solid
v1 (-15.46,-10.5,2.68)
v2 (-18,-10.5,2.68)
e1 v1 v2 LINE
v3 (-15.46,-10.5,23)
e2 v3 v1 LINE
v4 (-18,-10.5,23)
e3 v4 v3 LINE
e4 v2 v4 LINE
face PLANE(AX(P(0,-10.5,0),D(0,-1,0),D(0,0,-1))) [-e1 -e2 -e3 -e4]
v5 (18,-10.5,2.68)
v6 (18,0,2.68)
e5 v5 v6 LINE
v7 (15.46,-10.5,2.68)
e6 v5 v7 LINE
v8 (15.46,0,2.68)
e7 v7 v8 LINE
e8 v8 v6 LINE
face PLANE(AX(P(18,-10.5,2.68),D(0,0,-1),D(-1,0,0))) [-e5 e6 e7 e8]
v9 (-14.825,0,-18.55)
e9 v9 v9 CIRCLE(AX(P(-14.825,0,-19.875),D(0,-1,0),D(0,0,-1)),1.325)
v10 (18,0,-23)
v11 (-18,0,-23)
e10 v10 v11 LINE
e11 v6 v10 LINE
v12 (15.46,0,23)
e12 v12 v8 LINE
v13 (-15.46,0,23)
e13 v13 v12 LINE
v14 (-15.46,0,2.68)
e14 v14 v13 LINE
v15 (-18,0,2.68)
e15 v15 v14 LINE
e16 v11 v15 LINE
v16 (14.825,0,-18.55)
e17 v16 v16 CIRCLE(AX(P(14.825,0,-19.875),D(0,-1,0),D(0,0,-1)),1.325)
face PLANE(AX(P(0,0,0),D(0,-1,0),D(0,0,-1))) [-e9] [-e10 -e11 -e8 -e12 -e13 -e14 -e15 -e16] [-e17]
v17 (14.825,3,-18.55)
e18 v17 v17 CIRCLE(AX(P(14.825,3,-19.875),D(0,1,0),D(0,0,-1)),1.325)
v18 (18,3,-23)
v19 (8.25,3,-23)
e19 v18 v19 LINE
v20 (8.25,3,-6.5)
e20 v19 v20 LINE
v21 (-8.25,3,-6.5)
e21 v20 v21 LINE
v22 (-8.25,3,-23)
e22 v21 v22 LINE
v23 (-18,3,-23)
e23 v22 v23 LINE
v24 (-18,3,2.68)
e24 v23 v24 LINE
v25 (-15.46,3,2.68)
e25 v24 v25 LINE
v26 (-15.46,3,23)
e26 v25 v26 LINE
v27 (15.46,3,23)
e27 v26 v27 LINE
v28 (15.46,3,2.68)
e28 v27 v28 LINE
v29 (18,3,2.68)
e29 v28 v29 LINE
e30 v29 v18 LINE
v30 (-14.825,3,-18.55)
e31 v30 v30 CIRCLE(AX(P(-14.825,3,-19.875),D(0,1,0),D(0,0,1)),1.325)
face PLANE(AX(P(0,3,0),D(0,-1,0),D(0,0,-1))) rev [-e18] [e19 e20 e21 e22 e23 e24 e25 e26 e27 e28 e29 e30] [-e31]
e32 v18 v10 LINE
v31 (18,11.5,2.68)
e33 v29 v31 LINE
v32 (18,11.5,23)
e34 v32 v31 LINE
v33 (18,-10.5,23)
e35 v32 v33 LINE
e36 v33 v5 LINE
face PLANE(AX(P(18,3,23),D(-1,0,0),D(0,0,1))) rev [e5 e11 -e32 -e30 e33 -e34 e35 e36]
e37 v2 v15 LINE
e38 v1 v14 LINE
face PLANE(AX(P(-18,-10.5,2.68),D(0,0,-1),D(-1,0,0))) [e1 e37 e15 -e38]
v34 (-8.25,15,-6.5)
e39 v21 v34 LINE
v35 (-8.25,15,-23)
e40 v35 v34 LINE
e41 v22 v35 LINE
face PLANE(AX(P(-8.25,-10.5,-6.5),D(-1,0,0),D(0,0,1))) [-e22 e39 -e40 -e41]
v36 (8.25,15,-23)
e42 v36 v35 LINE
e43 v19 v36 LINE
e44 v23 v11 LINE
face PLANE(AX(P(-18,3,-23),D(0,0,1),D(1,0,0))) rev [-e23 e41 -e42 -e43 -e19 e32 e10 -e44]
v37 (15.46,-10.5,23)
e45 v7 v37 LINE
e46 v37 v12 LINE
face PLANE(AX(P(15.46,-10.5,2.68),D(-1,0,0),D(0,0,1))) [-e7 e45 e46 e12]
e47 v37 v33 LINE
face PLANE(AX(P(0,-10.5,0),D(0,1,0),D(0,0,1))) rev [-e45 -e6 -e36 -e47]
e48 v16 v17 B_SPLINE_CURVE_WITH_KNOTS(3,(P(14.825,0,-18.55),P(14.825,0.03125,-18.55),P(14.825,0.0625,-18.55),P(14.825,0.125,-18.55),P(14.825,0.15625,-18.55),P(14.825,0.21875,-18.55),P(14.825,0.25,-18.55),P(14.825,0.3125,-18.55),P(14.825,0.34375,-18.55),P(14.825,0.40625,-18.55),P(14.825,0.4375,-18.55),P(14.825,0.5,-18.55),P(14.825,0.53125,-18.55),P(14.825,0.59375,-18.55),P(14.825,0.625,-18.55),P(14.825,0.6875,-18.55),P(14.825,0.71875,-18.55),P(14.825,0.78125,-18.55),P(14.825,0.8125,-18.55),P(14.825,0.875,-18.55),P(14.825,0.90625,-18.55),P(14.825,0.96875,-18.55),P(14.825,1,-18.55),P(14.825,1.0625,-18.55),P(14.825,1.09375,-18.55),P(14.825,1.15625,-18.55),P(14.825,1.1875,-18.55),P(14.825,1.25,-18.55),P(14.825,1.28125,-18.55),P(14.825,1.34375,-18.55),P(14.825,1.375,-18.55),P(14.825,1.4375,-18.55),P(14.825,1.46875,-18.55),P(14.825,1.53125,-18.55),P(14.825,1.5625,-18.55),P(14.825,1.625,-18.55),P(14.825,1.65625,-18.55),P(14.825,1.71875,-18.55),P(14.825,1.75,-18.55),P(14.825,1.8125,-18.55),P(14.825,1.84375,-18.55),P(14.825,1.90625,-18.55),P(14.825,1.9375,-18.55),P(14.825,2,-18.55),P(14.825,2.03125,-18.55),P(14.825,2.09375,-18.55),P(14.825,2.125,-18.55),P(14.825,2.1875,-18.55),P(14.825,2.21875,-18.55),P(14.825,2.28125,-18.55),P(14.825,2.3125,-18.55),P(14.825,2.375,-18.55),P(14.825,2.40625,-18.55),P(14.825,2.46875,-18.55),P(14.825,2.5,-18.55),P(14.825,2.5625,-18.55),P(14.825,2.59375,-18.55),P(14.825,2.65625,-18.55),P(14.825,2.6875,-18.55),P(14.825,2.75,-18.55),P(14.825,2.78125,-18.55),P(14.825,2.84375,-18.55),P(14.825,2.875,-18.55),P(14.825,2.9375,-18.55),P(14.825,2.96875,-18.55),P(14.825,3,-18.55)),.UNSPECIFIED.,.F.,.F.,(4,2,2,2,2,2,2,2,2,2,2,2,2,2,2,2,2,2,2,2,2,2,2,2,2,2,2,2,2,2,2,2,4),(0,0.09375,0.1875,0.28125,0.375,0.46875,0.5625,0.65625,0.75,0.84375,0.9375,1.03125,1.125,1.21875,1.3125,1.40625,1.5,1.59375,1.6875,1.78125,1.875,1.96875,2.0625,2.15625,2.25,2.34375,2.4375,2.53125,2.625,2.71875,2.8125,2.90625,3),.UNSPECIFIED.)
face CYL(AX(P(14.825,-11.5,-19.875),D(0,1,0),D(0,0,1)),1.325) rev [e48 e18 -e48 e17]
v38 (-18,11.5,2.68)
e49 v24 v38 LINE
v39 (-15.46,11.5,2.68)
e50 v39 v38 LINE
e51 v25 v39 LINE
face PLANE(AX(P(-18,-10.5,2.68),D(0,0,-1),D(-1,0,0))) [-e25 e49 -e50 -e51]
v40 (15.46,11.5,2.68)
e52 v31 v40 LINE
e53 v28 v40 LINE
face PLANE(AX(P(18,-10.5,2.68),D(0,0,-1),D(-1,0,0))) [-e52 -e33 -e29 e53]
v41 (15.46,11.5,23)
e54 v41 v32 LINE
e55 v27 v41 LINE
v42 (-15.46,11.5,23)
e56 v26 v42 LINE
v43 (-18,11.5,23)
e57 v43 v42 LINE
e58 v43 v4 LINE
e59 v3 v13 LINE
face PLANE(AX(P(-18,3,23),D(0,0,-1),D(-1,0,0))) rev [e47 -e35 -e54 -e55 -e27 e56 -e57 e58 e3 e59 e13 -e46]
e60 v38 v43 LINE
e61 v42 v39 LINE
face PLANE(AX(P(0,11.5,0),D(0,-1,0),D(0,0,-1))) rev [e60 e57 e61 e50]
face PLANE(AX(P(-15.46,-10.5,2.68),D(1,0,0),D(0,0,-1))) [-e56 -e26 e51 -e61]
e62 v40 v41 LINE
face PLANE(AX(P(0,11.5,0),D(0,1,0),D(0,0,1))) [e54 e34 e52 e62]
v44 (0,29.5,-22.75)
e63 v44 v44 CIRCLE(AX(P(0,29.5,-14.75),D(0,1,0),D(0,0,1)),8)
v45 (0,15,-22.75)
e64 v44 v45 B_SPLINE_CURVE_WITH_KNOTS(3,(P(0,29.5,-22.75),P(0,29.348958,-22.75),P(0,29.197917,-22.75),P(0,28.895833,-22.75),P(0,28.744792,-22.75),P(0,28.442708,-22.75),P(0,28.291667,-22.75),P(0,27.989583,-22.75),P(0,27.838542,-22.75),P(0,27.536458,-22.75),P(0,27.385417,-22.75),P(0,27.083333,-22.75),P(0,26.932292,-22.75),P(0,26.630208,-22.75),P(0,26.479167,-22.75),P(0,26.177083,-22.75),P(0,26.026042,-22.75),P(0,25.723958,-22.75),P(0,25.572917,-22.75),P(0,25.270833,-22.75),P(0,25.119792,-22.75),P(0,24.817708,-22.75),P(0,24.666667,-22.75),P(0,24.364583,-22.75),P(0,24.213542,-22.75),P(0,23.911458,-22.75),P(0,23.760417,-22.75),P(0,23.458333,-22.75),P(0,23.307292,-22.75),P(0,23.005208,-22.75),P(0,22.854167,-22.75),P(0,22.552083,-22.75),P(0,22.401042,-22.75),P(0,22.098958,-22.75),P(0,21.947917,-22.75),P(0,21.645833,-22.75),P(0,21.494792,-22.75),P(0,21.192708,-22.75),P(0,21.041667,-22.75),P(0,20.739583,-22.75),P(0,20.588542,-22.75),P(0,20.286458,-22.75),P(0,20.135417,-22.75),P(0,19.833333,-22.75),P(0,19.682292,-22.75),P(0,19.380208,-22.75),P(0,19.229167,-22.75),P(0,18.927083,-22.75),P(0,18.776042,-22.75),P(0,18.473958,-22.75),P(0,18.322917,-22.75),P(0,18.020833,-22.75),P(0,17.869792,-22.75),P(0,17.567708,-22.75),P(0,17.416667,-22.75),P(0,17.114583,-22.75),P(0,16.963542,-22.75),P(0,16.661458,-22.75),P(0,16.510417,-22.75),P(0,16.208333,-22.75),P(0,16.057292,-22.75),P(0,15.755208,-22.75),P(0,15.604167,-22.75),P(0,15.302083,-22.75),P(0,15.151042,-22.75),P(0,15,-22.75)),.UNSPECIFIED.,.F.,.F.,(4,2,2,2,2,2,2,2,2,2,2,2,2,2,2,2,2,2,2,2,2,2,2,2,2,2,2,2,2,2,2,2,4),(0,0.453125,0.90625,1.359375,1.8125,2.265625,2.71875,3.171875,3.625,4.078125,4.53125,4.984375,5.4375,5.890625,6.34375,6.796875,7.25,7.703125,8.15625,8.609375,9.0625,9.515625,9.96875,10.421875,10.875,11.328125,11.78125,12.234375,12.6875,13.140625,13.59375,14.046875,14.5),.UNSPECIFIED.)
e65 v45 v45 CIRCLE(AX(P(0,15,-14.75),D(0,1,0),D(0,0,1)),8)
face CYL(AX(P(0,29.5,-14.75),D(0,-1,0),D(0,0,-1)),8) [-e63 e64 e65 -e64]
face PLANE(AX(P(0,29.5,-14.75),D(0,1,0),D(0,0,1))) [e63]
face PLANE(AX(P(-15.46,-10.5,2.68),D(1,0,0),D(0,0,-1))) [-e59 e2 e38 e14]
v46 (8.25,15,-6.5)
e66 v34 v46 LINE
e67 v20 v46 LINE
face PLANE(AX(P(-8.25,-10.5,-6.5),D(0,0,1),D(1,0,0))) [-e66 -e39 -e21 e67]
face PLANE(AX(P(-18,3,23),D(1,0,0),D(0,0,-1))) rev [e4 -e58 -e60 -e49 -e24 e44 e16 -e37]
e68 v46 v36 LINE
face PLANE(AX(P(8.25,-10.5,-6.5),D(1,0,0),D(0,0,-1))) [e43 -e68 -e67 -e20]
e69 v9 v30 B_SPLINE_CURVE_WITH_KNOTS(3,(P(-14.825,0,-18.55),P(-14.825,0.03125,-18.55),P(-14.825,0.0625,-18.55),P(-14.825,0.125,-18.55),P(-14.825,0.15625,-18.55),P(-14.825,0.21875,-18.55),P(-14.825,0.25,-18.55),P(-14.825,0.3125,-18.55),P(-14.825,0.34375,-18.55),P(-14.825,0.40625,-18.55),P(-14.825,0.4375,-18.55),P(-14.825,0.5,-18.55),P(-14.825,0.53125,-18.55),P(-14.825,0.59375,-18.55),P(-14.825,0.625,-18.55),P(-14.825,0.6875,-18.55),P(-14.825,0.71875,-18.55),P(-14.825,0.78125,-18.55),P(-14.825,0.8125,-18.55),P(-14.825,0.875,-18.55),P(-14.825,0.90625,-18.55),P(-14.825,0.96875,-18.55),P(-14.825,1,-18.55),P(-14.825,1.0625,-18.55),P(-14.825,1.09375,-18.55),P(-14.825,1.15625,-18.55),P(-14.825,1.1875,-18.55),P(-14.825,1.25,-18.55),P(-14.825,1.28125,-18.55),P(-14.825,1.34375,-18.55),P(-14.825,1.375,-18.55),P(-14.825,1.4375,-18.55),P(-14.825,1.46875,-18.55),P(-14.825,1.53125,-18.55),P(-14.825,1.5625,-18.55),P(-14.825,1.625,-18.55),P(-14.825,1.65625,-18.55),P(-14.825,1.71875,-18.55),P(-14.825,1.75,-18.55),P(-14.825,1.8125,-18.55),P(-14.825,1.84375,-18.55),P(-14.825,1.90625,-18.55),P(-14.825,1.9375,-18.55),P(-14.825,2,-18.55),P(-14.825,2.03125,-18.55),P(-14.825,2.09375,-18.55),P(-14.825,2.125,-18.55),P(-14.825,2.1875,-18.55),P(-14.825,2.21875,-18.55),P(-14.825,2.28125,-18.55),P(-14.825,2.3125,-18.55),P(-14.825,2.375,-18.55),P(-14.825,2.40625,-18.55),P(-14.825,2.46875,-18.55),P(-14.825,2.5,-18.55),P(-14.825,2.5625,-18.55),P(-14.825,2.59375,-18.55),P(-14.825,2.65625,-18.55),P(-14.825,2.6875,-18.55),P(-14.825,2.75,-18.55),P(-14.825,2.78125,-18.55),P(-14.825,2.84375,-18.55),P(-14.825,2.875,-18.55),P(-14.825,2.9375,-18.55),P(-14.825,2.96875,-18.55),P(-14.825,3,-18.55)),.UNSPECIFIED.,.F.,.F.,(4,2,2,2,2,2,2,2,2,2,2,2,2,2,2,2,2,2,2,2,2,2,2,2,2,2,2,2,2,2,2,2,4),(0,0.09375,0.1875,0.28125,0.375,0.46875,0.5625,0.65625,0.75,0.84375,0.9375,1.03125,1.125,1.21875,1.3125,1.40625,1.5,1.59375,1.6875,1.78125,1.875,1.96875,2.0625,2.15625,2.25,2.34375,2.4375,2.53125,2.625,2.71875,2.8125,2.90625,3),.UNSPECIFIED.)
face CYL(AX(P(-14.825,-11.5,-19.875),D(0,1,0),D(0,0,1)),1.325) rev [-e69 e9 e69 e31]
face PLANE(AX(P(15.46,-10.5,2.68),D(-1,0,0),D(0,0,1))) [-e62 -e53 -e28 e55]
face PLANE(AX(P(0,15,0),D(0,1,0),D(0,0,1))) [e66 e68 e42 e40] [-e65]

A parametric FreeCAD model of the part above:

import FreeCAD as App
import Part
import Sketcher

V = App.Vector
Q = App.Units.Quantity

doc = App.newDocument("Part")
body = doc.addObject("PartDesign::Body", "Body")

sketch1 = body.newObject("Sketcher::SketchObject", "Sketch")
sketch1.AttachmentSupport = (doc.getObject("XZ_Plane"), [""])
sketch1.MapMode = "FlatFace"
sketch1.addGeometry([
    Part.LineSegment(V(-18, -23, 0), V(-18, 23, 0)),
    Part.LineSegment(V(-18, 23, 0), V(18, 23, 0)),
    Part.LineSegment(V(18, 23, 0), V(18, -23, 0)),
    Part.LineSegment(V(18, -23, 0), V(-18, -23, 0)),
], False)
sketch1.addConstraint([
    Sketcher.Constraint("Coincident", 0, 2, 1, 1),
    Sketcher.Constraint("Coincident", 1, 2, 2, 1),
    Sketcher.Constraint("Coincident", 2, 2, 3, 1),
    Sketcher.Constraint("Coincident", 3, 2, 0, 1),
    Sketcher.Constraint("Vertical", 0),
    Sketcher.Constraint("Horizontal", 1),
    Sketcher.Constraint("Vertical", 2),
    Sketcher.Constraint("Horizontal", 3),
    Sketcher.Constraint("Symmetric", 0, 2, 2, 2, -1, 1),
    Sketcher.Constraint("DistanceX", 1, 1, 1, 2, Q("36 mm")),
    Sketcher.Constraint("DistanceY", 0, 1, 0, 2, Q("46 mm")),
])
pad1 = body.newObject("PartDesign::Pad", "Pad")
pad1.Profile = sketch1
pad1.Length = 3
pad1.Reversed = True

sketch2 = body.newObject("Sketcher::SketchObject", "Sketch001")
sketch2.AttachmentSupport = (doc.getObject("XZ_Plane"), [""])
sketch2.MapMode = "FlatFace"
sketch2.AttachmentOffset = App.Placement(V(0, 0, -3), App.Rotation())
sketch2.addGeometry([
    Part.LineSegment(V(15.5, 2.7, 0), V(15.5, 23, 0)),
    Part.LineSegment(V(15.5, 23, 0), V(18, 23, 0)),
    Part.LineSegment(V(18, 23, 0), V(18, 2.7, 0)),
    Part.LineSegment(V(18, 2.7, 0), V(15.5, 2.7, 0)),
    Part.LineSegment(V(-18, 2.7, 0), V(-18, 23, 0)),
    Part.LineSegment(V(-18, 23, 0), V(-15.5, 23, 0)),
    Part.LineSegment(V(-15.5, 23, 0), V(-15.5, 2.7, 0)),
    Part.LineSegment(V(-15.5, 2.7, 0), V(-18, 2.7, 0)),
    Part.LineSegment(V(-8.2, -23, 0), V(-8.2, -6.5, 0)),
    Part.LineSegment(V(-8.2, -6.5, 0), V(8.2, -6.5, 0)),
    Part.LineSegment(V(8.2, -6.5, 0), V(8.2, -23, 0)),
    Part.LineSegment(V(8.2, -23, 0), V(-8.2, -23, 0)),
], False)
sketch2.addConstraint([
    Sketcher.Constraint("Coincident", 0, 2, 1, 1),
    Sketcher.Constraint("Coincident", 1, 2, 2, 1),
    Sketcher.Constraint("Coincident", 2, 2, 3, 1),
    Sketcher.Constraint("Coincident", 3, 2, 0, 1),
    Sketcher.Constraint("Coincident", 4, 2, 5, 1),
    Sketcher.Constraint("Coincident", 5, 2, 6, 1),
    Sketcher.Constraint("Coincident", 6, 2, 7, 1),
    Sketcher.Constraint("Coincident", 7, 2, 4, 1),
    Sketcher.Constraint("Coincident", 8, 2, 9, 1),
    Sketcher.Constraint("Coincident", 9, 2, 10, 1),
    Sketcher.Constraint("Coincident", 10, 2, 11, 1),
    Sketcher.Constraint("Coincident", 11, 2, 8, 1),
    Sketcher.Constraint("Vertical", 0),
    Sketcher.Constraint("Horizontal", 1),
    Sketcher.Constraint("Vertical", 2),
    Sketcher.Constraint("Horizontal", 3),
    Sketcher.Constraint("Vertical", 4),
    Sketcher.Constraint("Horizontal", 5),
    Sketcher.Constraint("Vertical", 6),
    Sketcher.Constraint("Horizontal", 7),
    Sketcher.Constraint("Vertical", 8),
    Sketcher.Constraint("Horizontal", 9),
    Sketcher.Constraint("Vertical", 10),
    Sketcher.Constraint("Horizontal", 11),
    Sketcher.Constraint("Symmetric", 1, 2, 4, 2, -2),
    Sketcher.Constraint("Symmetric", 3, 2, 6, 2, -2),
    Sketcher.Constraint("Equal", 11, 8),
    Sketcher.Constraint("DistanceX", 9, 1, 9, 2, Q("16.5 mm")),
    Sketcher.Constraint("DistanceY", -1, 1, 0, 2, Q("23 mm")),
    Sketcher.Constraint("DistanceX", -1, 1, 1, 2, Q("18 mm")),
    Sketcher.Constraint("DistanceY", 10, 2, -1, 1, Q("23 mm")),
    Sketcher.Constraint("DistanceX", 1, 1, 1, 2, Q("2.54 mm")),
    Sketcher.Constraint("DistanceY", 0, 1, 0, 2, Q("20.32 mm")),
    Sketcher.Constraint("DistanceX", 8, 2, -1, 1, Q("8.25 mm")),
])
pad2 = body.newObject("PartDesign::Pad", "Pad001")
pad2.Profile = sketch2
pad2.Type = "TwoLengths"
pad2.Length = 8.5
pad2.Length2 = 13.5
pad2.Reversed = True

sketch3 = body.newObject("Sketcher::SketchObject", "Sketch002")
sketch3.AttachmentSupport = (doc.getObject("XZ_Plane"), [""])
sketch3.MapMode = "FlatFace"
sketch3.AttachmentOffset = App.Placement(V(0, 0, -11.5), App.Rotation())
sketch3.addGeometry([
    Part.LineSegment(V(-8, -23, 0), V(-8, -6, 0)),
    Part.LineSegment(V(-8, -6, 0), V(8, -6, 0)),
    Part.LineSegment(V(8, -6, 0), V(8, -23, 0)),
    Part.LineSegment(V(8, -23, 0), V(-8, -23, 0)),
], False)
sketch3.addConstraint([
    Sketcher.Constraint("Coincident", 0, 2, 1, 1),
    Sketcher.Constraint("Coincident", 1, 2, 2, 1),
    Sketcher.Constraint("Coincident", 2, 2, 3, 1),
    Sketcher.Constraint("Coincident", 3, 2, 0, 1),
    Sketcher.Constraint("Vertical", 0),
    Sketcher.Constraint("Horizontal", 1),
    Sketcher.Constraint("Vertical", 2),
    Sketcher.Constraint("Horizontal", 3),
    Sketcher.Constraint("Equal", 3, 0),
    Sketcher.Constraint("DistanceX", 1, 1, 1, 2, Q("16.5 mm")),
    Sketcher.Constraint("DistanceY", 2, 2, -1, 1, Q("23 mm")),
    Sketcher.Constraint("DistanceX", 0, 2, -1, 1, Q("8.25 mm")),
])
pad3 = body.newObject("PartDesign::Pad", "Pad002")
pad3.Profile = sketch3
pad3.Length = 3.5
pad3.Reversed = True

sketch4 = body.newObject("Sketcher::SketchObject", "Sketch003")
sketch4.AttachmentSupport = (doc.getObject("XZ_Plane"), [""])
sketch4.MapMode = "FlatFace"
sketch4.AttachmentOffset = App.Placement(V(0, 0, -15), App.Rotation())
sketch4.addGeometry(Part.Circle(V(0, -15, 0), V(0, 0, 1), 8), False)
sketch4.addConstraint([
    Sketcher.Constraint("PointOnObject", 0, 3, -2),
    Sketcher.Constraint("Diameter", 0, Q("16 mm")),
    Sketcher.Constraint("DistanceY", 0, 3, -1, 1, Q("14.75 mm")),
])
pad4 = body.newObject("PartDesign::Pad", "Pad003")
pad4.Profile = sketch4
pad4.Length = 14.5
pad4.Reversed = True

sketch5 = body.newObject("Sketcher::SketchObject", "Sketch004")
sketch5.AttachmentSupport = (doc.getObject("XZ_Plane"), [""])
sketch5.MapMode = "FlatFace"
sketch5.AttachmentOffset = App.Placement(V(0, 0, -3), App.Rotation())
sketch5.addGeometry([
    Part.Circle(V(-14.8, -19.9, 0), V(0, 0, 1), 1.3),
    Part.Circle(V(14.8, -19.9, 0), V(0, 0, 1), 1.3),
], False)
sketch5.addConstraint([
    Sketcher.Constraint("Equal", 0, 1),
    Sketcher.Constraint("Symmetric", 0, 3, 1, 3, -2),
    Sketcher.Constraint("Diameter", 0, Q("2.65 mm")),
    Sketcher.Constraint("DistanceX", 0, 3, 1, 3, Q("29.65 mm")),
    Sketcher.Constraint("DistanceY", 0, 3, -1, 1, Q("19.875 mm")),
])
pocket1 = body.newObject("PartDesign::Pocket", "Pocket")
pocket1.Profile = sketch5
pocket1.Length = 14.5
pocket1.Reversed = True

sketch6 = body.newObject("Sketcher::SketchObject", "Sketch005")
sketch6.AttachmentSupport = (doc.getObject("YZ_Plane"), [""])
sketch6.MapMode = "FlatFace"
sketch6.AttachmentOffset = App.Placement(V(0, 0, -8.25), App.Rotation())
sketch6.addGeometry([
    Part.LineSegment(V(0, -23, 0), V(-10, -23, 0)),
    Part.LineSegment(V(-10, -23, 0), V(-10, -6, 0)),
    Part.LineSegment(V(-10, -6, 0), V(0, -6, 0)),
    Part.LineSegment(V(0, -6, 0), V(0, -23, 0)),
], False)
sketch6.addConstraint([
    Sketcher.Constraint("Coincident", 0, 2, 1, 1),
    Sketcher.Constraint("Coincident", 1, 2, 2, 1),
    Sketcher.Constraint("Coincident", 2, 2, 3, 1),
    Sketcher.Constraint("Coincident", 3, 2, 0, 1),
    Sketcher.Constraint("Horizontal", 0),
    Sketcher.Constraint("Vertical", 1),
    Sketcher.Constraint("Horizontal", 2),
    Sketcher.Constraint("Vertical", 3),
    Sketcher.Constraint("PointOnObject", 2, 2, -2),
    Sketcher.Constraint("DistanceX", 0, 2, 0, 1, Q("10.5 mm")),
    Sketcher.Constraint("DistanceY", 1, 1, 1, 2, Q("16.5 mm")),
    Sketcher.Constraint("DistanceY", 0, 2, -1, 1, Q("23 mm")),
])
pocket2 = body.newObject("PartDesign::Pocket", "Pocket001")
pocket2.Profile = sketch6
pocket2.Length = 31.5
pocket2.Reversed = True

doc.recompute()
